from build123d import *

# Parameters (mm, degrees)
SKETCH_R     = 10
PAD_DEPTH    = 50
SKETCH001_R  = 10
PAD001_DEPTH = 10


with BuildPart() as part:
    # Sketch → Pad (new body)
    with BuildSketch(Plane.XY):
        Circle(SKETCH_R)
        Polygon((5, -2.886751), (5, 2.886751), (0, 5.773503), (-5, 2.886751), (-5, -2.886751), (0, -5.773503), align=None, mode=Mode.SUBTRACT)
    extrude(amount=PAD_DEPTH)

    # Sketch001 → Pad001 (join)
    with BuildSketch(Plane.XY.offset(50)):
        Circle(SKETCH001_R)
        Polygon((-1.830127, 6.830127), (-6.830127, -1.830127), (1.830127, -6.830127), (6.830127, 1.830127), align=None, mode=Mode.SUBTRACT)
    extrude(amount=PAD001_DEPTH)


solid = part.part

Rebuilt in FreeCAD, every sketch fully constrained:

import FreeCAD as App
import Part
import Sketcher

V = App.Vector
Q = App.Units.Quantity


def add_polygon(sketch, points):
    """Adds a closed chain of lines whose ends are joined by coincident constraints."""
    first, n = sketch.GeometryCount, len(points)
    for a, b in zip(points, points[1:] + points[:1]):
        sketch.addGeometry(Part.LineSegment(App.Vector(*a, 0), App.Vector(*b, 0)), False)
    for i in range(n):
        sketch.addConstraint(Sketcher.Constraint("Coincident", first + i, 2, first + (i + 1) % n, 1))

doc = App.newDocument("Part")
params = doc.addObject("Spreadsheet::Sheet", "Params")
for row, (alias, value) in enumerate([
    ("sketch1_diameter", "20 mm"),
    ("pad1_length", "50 mm"),
    ("sketch2_diameter", "20 mm"),
    ("sketch2_length", "10 mm"),
    ("pad2_length", "10 mm"),
], start=1):
    params.set(f"A{row}", alias)
    params.set(f"B{row}", "=" + value)
    params.setAlias(f"B{row}", alias)

body = doc.addObject("PartDesign::Body", "Body")

# Sketch on XY plane
sketch1 = body.newObject("Sketcher::SketchObject", "Sketch")
sketch1.AttachmentSupport = (doc.getObject("XY_Plane"), [""])
sketch1.MapMode = "FlatFace"
sketch1.addGeometry(Part.Circle(V(0, 0, 0), V(0, 0, 1), 10), False)  # 0
add_polygon(sketch1, [(5, 3), (5, -3), (0, -6), (-5, -3), (-5, 3), (0, 6)])  # lines 1-6
sketch1.addConstraint(Sketcher.Constraint("Vertical", 1))
sketch1.addConstraint(Sketcher.Constraint("Vertical", 4))
sketch1.addConstraint(Sketcher.Constraint("Coincident", 0, 3, -1, 1))
sketch1.addConstraint(Sketcher.Constraint("Symmetric", 1, 2, 4, 2, -1, 1))
sketch1.addConstraint(Sketcher.Constraint("Symmetric", 2, 2, 5, 2, -1, 1))
sketch1.addConstraint(Sketcher.Constraint("PointOnObject", 2, 2, -2))
sketch1.addConstraint(Sketcher.Constraint("Parallel", 3, 6))
sketch1.addConstraint(Sketcher.Constraint("Horizontal", 1, 2, 3, 2))
sketch1.addConstraint(Sketcher.Constraint("Diameter", 0, 20.0))
sketch1.addConstraint(Sketcher.Constraint("Angle", 2, Q("-149.999994 deg")))
sketch1.addConstraint(Sketcher.Constraint("DistanceX", -1, 1, 1, 2, 5.0))
sketch1.addConstraint(Sketcher.Constraint("DistanceY", 1, 2, 1, 1, 5.773502))
sketch1.setExpression("Constraints[14]", "Params.sketch1_diameter")
pad1 = body.newObject("PartDesign::Pad", "Pad")
pad1.Profile = sketch1
pad1.setExpression("Length", "Params.pad1_length")

# Sketch on XY plane
sketch2 = body.newObject("Sketcher::SketchObject", "Sketch001")
sketch2.AttachmentSupport = (doc.getObject("XY_Plane"), [""])
sketch2.MapMode = "FlatFace"
sketch2.AttachmentOffset = App.Placement(V(0, 0, 50), App.Rotation())
sketch2.addGeometry(Part.Circle(V(0, 0, 0), V(0, 0, 1), 10), False)  # 0
add_polygon(sketch2, [(-7, -2), (-2, 7), (7, 2), (2, -7)])  # lines 1-4
sketch2.addConstraint(Sketcher.Constraint("Coincident", 0, 3, -1, 1))
sketch2.addConstraint(Sketcher.Constraint("Symmetric", 1, 2, 3, 2, -1, 1))
sketch2.addConstraint(Sketcher.Constraint("Symmetric", 2, 2, 4, 2, -1, 1))
sketch2.addConstraint(Sketcher.Constraint("Perpendicular", 1, 2))
sketch2.addConstraint(Sketcher.Constraint("Equal", 1, 2))
sketch2.addConstraint(Sketcher.Constraint("Diameter", 0, 20.0))
sketch2.addConstraint(Sketcher.Constraint("Angle", 1, Q("60 deg")))
sketch2.addConstraint(Sketcher.Constraint("Distance", 1, 10.0))
sketch2.setExpression("Constraints[9]", "Params.sketch2_diameter")
sketch2.setExpression("Constraints[11]", "Params.sketch2_length")
pad2 = body.newObject("PartDesign::Pad", "Pad001")
pad2.Profile = sketch2
pad2.setExpression("Length", "Params.pad2_length")

doc.recompute()
